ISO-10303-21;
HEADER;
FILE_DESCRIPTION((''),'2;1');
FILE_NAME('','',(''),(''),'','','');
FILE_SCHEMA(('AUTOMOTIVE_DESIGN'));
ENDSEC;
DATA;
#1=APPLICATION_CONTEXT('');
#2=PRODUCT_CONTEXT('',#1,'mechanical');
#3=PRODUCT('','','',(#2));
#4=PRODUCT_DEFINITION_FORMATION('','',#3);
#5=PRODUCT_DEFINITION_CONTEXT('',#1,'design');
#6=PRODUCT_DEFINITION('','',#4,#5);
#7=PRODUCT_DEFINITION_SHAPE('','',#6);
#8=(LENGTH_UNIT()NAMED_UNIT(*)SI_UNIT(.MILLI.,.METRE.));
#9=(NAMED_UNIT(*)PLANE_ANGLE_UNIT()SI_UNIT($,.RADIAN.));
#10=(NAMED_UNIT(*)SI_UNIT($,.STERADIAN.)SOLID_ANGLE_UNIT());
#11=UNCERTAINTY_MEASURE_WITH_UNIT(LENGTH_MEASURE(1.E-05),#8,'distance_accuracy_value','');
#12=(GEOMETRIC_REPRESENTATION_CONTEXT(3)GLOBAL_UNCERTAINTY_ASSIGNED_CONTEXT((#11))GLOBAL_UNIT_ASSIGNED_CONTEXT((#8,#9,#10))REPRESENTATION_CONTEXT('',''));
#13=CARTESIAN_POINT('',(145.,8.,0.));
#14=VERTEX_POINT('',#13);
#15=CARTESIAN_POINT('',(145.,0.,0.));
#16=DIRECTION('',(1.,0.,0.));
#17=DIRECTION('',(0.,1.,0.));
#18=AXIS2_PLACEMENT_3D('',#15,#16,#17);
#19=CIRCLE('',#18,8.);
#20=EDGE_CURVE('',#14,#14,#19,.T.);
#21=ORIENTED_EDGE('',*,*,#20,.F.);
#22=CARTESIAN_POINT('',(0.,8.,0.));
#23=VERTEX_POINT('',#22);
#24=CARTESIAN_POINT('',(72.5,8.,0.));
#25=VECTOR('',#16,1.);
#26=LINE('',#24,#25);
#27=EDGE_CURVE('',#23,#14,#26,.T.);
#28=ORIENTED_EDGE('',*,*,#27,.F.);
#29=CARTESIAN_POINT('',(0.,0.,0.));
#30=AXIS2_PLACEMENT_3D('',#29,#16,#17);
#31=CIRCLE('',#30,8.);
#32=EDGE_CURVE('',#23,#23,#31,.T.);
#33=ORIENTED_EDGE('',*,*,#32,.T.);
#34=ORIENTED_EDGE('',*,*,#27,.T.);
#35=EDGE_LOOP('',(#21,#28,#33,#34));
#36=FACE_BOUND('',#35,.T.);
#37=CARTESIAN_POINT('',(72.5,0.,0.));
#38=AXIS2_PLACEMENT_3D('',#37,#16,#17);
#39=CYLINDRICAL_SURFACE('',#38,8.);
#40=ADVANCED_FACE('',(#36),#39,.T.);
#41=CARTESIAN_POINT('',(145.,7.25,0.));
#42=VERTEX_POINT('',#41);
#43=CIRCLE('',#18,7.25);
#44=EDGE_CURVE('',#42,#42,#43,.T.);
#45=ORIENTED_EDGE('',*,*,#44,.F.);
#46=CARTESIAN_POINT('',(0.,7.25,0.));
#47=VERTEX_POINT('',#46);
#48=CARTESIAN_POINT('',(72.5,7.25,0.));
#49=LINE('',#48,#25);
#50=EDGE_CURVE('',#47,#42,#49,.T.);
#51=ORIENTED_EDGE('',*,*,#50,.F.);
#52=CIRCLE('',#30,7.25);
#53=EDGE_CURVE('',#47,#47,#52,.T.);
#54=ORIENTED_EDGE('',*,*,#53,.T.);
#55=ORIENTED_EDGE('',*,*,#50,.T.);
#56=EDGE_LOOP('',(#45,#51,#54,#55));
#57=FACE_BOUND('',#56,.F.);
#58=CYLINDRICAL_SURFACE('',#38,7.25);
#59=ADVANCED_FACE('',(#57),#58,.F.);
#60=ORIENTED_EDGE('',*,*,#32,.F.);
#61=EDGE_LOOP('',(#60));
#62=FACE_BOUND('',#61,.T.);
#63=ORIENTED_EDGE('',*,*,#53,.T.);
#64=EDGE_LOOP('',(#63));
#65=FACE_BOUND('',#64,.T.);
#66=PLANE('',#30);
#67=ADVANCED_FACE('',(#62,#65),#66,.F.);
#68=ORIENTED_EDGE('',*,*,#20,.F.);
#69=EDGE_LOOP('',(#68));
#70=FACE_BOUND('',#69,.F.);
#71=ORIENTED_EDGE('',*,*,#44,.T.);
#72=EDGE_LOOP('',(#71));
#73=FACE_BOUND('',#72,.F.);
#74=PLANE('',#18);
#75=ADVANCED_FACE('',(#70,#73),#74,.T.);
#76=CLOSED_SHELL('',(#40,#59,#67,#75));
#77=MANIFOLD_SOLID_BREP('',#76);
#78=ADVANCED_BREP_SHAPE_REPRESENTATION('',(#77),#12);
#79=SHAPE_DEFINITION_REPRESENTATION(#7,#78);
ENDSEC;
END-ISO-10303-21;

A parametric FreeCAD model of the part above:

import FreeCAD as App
import Part
import Sketcher
Q = App.Units.Quantity


def add_polygon(sketch, points):
    """Adds a closed chain of lines whose ends are joined by coincident constraints."""
    first, n = sketch.GeometryCount, len(points)
    for a, b in zip(points, points[1:] + points[:1]):
        sketch.addGeometry(Part.LineSegment(App.Vector(*a, 0), App.Vector(*b, 0)), False)
    for i in range(n):
        sketch.addConstraint(Sketcher.Constraint("Coincident", first + i, 2, first + (i + 1) % n, 1))

doc = App.newDocument("Part")
params = doc.addObject("Spreadsheet::Sheet", "Params")
for row, (alias, value) in enumerate([
    ("sketch1_width", "145 mm"),
    ("sketch1_height", "0.75 mm"),
    ("revolution_angle", "360 deg"),
], start=1):
    params.set(f"A{row}", alias)
    params.set(f"B{row}", "=" + value)
    params.setAlias(f"B{row}", alias)

body = doc.addObject("PartDesign::Body", "Body")

sketch1 = doc.addObject("Sketcher::SketchObject", "Sketch")
body.addObject(sketch1)
sketch1.AttachmentSupport = (doc.XY_Plane, [""])
sketch1.MapMode = "FlatFace"
add_polygon(sketch1, [(0, 8), (0, 7.2), (145, 7.2), (145, 8)])
sketch1.addConstraint(Sketcher.Constraint("Vertical", 0))
sketch1.addConstraint(Sketcher.Constraint("Horizontal", 1))
sketch1.addConstraint(Sketcher.Constraint("Vertical", 2))
sketch1.addConstraint(Sketcher.Constraint("Horizontal", 3))
sketch1.addConstraint(Sketcher.Constraint("PointOnObject", 0, 2, -2))
sketch1.addConstraint(Sketcher.Constraint("DistanceX", 1, 1, 1, 2, Q("145 mm")))
sketch1.addConstraint(Sketcher.Constraint("DistanceY", -1, 1, 2, 2, Q("8 mm")))
sketch1.addConstraint(Sketcher.Constraint("DistanceY", 0, 2, 0, 1, Q("0.75 mm")))
sketch1.setExpression("Constraints[9]", "Params.sketch1_width")
sketch1.setExpression("Constraints[11]", "Params.sketch1_height")
revolution = doc.addObject("PartDesign::Revolution", "Revolution")
body.addObject(revolution)
revolution.Profile = sketch1
revolution.ReferenceAxis = (sketch1, ["H_Axis"])
revolution.setExpression("Angle", "Params.revolution_angle")

doc.recompute()
